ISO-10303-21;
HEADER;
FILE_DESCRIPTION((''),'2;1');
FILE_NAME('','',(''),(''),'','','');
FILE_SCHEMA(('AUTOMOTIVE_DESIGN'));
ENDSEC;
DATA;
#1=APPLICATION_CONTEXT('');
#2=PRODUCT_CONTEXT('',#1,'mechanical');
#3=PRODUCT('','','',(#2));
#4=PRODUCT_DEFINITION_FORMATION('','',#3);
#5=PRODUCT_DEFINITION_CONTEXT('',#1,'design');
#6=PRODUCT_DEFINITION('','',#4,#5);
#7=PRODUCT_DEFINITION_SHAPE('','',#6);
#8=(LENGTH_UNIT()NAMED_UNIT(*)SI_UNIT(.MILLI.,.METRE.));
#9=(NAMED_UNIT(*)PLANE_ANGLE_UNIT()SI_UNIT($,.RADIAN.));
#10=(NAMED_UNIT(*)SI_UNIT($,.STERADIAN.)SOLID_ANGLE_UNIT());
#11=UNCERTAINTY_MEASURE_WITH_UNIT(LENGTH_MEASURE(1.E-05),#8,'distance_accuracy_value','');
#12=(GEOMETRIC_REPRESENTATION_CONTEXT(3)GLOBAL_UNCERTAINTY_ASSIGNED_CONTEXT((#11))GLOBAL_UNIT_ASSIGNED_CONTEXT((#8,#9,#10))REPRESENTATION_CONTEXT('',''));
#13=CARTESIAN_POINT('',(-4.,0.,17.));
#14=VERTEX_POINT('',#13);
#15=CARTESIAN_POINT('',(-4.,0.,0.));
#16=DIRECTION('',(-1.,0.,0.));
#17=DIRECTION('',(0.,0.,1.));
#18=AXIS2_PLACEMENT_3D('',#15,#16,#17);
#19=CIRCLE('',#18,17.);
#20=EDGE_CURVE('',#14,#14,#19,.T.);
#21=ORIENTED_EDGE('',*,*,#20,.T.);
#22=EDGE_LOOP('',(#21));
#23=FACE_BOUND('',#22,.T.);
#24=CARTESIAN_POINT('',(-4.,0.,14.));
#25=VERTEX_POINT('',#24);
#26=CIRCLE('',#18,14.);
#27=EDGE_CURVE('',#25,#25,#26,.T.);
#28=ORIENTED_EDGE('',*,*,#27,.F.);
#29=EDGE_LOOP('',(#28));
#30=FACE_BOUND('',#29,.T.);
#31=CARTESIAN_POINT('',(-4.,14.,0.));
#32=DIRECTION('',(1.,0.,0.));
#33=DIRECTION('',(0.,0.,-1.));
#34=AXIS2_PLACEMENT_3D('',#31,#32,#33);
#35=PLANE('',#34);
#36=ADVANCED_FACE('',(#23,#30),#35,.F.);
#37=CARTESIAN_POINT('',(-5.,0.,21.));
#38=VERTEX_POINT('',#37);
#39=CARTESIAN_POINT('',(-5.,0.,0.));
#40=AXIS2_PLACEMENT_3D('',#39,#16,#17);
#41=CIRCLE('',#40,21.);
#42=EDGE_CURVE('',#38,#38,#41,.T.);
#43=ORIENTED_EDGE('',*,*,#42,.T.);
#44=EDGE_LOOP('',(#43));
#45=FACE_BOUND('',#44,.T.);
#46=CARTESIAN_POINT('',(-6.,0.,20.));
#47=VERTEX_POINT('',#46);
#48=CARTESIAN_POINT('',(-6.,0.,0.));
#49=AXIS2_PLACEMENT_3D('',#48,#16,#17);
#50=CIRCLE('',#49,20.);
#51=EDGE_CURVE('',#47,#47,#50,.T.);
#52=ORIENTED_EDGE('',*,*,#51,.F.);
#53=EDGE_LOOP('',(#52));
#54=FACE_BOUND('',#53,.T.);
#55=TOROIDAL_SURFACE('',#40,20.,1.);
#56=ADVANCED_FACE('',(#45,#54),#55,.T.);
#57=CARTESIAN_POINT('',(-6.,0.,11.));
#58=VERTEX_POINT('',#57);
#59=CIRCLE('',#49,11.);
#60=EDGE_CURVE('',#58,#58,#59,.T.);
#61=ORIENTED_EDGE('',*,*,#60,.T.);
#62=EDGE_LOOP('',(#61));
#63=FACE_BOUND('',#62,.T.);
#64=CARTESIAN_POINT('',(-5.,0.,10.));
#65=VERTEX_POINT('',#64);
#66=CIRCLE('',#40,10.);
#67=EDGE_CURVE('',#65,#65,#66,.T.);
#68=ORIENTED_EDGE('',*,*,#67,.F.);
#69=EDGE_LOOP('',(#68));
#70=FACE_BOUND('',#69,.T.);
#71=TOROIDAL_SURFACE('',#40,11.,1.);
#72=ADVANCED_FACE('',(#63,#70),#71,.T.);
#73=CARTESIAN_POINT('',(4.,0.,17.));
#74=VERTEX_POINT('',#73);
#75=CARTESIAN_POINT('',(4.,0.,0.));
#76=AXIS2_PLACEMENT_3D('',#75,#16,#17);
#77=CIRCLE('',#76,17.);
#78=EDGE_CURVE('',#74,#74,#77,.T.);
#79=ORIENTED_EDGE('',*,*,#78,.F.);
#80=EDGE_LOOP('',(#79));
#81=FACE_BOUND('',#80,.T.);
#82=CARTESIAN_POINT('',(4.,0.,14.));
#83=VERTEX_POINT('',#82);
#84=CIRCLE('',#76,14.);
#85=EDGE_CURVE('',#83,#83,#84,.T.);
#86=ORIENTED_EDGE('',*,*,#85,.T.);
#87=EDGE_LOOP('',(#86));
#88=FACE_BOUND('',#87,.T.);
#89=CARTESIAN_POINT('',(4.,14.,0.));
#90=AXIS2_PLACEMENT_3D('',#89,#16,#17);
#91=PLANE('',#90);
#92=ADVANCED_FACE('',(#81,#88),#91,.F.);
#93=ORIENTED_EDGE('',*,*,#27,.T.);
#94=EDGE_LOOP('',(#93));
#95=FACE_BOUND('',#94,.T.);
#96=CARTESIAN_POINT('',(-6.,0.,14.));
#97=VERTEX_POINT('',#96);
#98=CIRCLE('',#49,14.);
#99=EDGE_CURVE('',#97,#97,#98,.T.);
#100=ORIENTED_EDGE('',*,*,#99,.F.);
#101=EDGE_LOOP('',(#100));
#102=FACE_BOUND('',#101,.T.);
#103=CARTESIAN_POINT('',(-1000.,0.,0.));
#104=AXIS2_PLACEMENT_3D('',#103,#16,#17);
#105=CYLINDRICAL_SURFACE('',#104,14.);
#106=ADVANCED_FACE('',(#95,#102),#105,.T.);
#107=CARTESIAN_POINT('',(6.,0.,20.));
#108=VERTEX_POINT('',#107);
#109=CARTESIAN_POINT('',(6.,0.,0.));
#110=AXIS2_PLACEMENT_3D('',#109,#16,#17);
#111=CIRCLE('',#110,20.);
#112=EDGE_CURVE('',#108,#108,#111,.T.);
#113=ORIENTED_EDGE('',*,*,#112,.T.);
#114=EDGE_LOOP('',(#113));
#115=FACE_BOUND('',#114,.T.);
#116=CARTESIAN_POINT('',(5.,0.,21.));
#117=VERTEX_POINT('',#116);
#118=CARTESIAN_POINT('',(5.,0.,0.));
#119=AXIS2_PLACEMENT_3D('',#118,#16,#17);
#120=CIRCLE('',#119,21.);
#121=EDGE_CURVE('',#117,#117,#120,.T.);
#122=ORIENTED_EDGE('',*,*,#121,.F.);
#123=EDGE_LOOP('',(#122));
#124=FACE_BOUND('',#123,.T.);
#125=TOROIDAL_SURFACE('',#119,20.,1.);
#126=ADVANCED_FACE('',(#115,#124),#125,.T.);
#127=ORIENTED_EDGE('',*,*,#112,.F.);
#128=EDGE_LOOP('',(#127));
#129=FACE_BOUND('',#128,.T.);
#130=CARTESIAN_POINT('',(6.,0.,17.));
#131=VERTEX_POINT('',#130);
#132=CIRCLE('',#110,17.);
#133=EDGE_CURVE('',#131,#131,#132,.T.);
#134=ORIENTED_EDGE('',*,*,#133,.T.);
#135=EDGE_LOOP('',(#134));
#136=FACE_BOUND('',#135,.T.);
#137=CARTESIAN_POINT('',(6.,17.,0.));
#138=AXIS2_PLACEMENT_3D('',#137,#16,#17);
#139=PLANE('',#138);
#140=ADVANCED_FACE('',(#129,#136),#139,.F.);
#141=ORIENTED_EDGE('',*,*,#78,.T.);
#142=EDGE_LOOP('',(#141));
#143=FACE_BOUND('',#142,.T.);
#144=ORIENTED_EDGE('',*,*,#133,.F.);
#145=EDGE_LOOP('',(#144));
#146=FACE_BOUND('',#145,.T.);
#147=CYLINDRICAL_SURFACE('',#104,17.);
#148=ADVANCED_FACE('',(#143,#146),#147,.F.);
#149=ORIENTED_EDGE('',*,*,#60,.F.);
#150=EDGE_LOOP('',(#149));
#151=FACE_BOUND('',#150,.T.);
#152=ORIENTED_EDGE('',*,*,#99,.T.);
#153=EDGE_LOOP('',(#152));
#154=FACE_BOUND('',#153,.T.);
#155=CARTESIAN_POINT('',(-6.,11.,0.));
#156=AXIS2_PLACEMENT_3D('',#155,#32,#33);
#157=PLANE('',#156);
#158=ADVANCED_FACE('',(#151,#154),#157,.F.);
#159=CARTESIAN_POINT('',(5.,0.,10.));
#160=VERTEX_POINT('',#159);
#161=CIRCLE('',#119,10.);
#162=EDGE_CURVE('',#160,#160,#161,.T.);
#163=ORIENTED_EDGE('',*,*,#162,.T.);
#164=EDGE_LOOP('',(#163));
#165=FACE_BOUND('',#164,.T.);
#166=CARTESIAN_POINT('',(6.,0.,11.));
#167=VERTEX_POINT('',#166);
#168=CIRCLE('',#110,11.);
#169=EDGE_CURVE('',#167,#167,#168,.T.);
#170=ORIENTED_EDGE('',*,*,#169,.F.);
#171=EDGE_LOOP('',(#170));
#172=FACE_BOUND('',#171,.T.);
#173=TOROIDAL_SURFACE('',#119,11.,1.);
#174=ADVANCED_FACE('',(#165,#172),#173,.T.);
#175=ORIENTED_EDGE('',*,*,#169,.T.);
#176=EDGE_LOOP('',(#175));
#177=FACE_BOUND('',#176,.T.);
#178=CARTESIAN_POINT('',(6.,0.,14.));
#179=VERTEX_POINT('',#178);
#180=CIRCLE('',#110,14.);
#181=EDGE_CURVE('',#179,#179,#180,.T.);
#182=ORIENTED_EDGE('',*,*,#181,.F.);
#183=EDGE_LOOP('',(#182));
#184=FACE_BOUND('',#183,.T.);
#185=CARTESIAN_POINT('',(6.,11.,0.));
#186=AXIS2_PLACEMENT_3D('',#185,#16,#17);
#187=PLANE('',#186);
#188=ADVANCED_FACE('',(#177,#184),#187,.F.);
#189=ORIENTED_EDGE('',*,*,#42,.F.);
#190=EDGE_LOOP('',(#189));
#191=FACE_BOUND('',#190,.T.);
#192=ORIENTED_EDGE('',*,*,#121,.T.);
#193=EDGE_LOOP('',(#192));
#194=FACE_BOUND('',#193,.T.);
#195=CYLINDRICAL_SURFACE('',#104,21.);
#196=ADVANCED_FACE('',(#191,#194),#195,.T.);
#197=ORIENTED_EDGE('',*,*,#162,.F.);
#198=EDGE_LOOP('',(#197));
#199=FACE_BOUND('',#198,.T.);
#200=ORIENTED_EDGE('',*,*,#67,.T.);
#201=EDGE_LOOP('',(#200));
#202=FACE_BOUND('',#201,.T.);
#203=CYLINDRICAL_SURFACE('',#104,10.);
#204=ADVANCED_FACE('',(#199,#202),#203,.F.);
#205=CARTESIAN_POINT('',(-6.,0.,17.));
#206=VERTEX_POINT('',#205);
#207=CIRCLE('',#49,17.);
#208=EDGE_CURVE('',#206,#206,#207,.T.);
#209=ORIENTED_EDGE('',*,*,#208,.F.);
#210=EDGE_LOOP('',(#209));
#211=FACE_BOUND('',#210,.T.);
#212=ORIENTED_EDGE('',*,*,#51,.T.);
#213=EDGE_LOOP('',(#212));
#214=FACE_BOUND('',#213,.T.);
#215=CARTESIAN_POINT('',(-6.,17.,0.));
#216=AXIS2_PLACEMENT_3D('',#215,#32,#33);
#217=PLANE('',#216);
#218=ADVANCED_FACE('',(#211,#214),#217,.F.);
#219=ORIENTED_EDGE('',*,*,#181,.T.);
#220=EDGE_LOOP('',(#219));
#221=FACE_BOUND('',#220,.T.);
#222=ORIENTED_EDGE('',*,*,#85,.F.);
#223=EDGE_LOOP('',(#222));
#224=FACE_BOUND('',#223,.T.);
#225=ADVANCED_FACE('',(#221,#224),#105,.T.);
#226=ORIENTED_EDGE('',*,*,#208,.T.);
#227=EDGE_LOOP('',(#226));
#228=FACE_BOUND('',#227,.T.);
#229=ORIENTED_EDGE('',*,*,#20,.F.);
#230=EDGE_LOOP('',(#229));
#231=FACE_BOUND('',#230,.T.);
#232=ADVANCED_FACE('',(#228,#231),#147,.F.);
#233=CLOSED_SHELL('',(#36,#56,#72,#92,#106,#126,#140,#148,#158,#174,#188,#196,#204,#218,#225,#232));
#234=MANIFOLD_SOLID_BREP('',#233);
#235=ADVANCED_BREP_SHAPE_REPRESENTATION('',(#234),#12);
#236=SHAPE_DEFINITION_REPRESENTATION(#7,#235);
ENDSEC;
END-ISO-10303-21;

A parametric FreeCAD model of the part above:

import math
import FreeCAD as App
import Part
import Sketcher

doc = App.newDocument("Part")
body = doc.addObject("PartDesign::Body", "Body")

# Sketch on XY plane
sketch1 = body.newObject("Sketcher::SketchObject", "Sketch")
sketch1.AttachmentSupport = (doc.getObject("XY_Plane"), [""])
sketch1.MapMode = "FlatFace"
sketch1.addGeometry([
    Part.LineSegment(App.Vector(-5, 10, 0), App.Vector(5, 10, 0)),  # 0
    Part.ArcOfCircle(Part.Circle(App.Vector(5, 11, 0), App.Vector(0, 0, 1), 1), math.radians(-90), math.radians(0)),  # 1
    Part.LineSegment(App.Vector(6, 11, 0), App.Vector(6, 14, 0)),  # 2
    Part.LineSegment(App.Vector(6, 14, 0), App.Vector(4, 14, 0)),  # 3
    Part.LineSegment(App.Vector(4, 14, 0), App.Vector(4, 17, 0)),  # 4
    Part.LineSegment(App.Vector(4, 17, 0), App.Vector(6, 17, 0)),  # 5
    Part.LineSegment(App.Vector(6, 17, 0), App.Vector(6, 20, 0)),  # 6
    Part.ArcOfCircle(Part.Circle(App.Vector(5, 20, 0), App.Vector(0, 0, 1), 1), math.radians(0), math.radians(90)),  # 7
    Part.LineSegment(App.Vector(5, 21, 0), App.Vector(-5, 21, 0)),  # 8
    Part.ArcOfCircle(Part.Circle(App.Vector(-5, 20, 0), App.Vector(0, 0, 1), 1), math.radians(90), math.radians(180)),  # 9
    Part.LineSegment(App.Vector(-6, 20, 0), App.Vector(-6, 17, 0)),  # 10
    Part.LineSegment(App.Vector(-6, 17, 0), App.Vector(-4, 17, 0)),  # 11
    Part.LineSegment(App.Vector(-4, 17, 0), App.Vector(-4, 14, 0)),  # 12
    Part.LineSegment(App.Vector(-4, 14, 0), App.Vector(-6, 14, 0)),  # 13
    Part.LineSegment(App.Vector(-6, 14, 0), App.Vector(-6, 11, 0)),  # 14
    Part.ArcOfCircle(Part.Circle(App.Vector(-5, 11, 0), App.Vector(0, 0, 1), 1), math.radians(-180), math.radians(-90)),  # 15
], False)
sketch1.addConstraint([
    Sketcher.Constraint("Tangent", 0, 2, 1, 1),
    Sketcher.Constraint("Tangent", 1, 2, 2, 1),
    Sketcher.Constraint("Coincident", 2, 2, 3, 1),
    Sketcher.Constraint("Coincident", 3, 2, 4, 1),
    Sketcher.Constraint("Coincident", 4, 2, 5, 1),
    Sketcher.Constraint("Coincident", 5, 2, 6, 1),
    Sketcher.Constraint("Tangent", 6, 2, 7, 1),
    Sketcher.Constraint("Tangent", 7, 2, 8, 1),
    Sketcher.Constraint("Tangent", 8, 2, 9, 1),
    Sketcher.Constraint("Tangent", 9, 2, 10, 1),
    Sketcher.Constraint("Coincident", 10, 2, 11, 1),
    Sketcher.Constraint("Coincident", 11, 2, 12, 1),
    Sketcher.Constraint("Coincident", 12, 2, 13, 1),
    Sketcher.Constraint("Coincident", 13, 2, 14, 1),
    Sketcher.Constraint("Tangent", 14, 2, 15, 1),
    Sketcher.Constraint("Tangent", 15, 2, 0, 1),
    Sketcher.Constraint("Horizontal", 0),
    Sketcher.Constraint("Vertical", 2),
    Sketcher.Constraint("Horizontal", 3),
    Sketcher.Constraint("Vertical", 4),
    Sketcher.Constraint("Horizontal", 5),
    Sketcher.Constraint("Vertical", 6),
    Sketcher.Constraint("Horizontal", 8),
    Sketcher.Constraint("Vertical", 10),
    Sketcher.Constraint("Horizontal", 11),
    Sketcher.Constraint("Vertical", 12),
    Sketcher.Constraint("Horizontal", 13),
    Sketcher.Constraint("Vertical", 14),
    Sketcher.Constraint("Equal", 1, 7),
    Sketcher.Constraint("Equal", 7, 9),
    Sketcher.Constraint("Equal", 9, 15),
    Sketcher.Constraint("Symmetric", 5, 2, 10, 2, -2),
    Sketcher.Constraint("Symmetric", 3, 2, 12, 2, -2),
    Sketcher.Constraint("Vertical", 1, 3, 7, 3),
    Sketcher.Constraint("Vertical", 9, 3, 15, 3),
    Sketcher.Constraint("Equal", 2, 4),
    Sketcher.Constraint("Equal", 4, 6),
    Sketcher.Constraint("Radius", 1, 1.0),
    Sketcher.Constraint("DistanceX", 0, 1, 0, 2, 10.0),
    Sketcher.Constraint("DistanceX", 3, 2, 3, 1, 2.0),
    Sketcher.Constraint("DistanceY", 2, 1, 2, 2, 3.0),
    Sketcher.Constraint("DistanceY", -1, 1, 1, 3, 11.0),
])
revolution = body.newObject("PartDesign::Revolution", "Revolution")
revolution.Profile = sketch1
revolution.ReferenceAxis = (sketch1, ["H_Axis"])
revolution.Angle = 360

doc.recompute()
